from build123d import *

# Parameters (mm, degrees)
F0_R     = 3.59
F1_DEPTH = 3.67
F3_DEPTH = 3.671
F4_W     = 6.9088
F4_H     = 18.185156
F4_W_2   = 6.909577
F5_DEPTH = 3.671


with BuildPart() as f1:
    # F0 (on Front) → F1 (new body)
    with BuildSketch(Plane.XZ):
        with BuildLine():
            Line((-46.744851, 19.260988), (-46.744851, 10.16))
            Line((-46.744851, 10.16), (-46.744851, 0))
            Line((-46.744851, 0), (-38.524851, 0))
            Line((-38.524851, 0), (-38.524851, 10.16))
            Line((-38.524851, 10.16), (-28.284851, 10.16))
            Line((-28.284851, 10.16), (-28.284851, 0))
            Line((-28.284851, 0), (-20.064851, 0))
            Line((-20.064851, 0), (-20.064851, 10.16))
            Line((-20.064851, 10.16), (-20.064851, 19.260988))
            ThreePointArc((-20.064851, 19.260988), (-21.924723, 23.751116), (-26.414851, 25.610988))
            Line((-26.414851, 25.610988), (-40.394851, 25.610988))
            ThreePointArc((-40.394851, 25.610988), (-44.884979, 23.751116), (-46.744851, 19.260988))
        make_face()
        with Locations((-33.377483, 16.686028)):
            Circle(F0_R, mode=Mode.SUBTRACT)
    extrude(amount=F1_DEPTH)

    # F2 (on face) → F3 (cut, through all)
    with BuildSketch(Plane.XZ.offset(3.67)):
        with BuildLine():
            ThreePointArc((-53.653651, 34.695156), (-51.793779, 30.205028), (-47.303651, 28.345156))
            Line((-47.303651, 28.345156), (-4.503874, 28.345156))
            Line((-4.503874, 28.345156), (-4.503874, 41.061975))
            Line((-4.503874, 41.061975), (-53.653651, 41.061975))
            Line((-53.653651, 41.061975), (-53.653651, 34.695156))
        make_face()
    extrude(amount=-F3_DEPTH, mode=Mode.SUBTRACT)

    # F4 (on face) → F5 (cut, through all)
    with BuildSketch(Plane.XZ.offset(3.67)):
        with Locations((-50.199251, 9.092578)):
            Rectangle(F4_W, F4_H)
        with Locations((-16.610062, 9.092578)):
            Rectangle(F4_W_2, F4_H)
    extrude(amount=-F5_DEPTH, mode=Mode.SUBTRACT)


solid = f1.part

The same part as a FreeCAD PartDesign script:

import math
import FreeCAD as App
import Part
import Sketcher

V = App.Vector
Q = App.Units.Quantity

doc = App.newDocument("Part")
body = doc.addObject("PartDesign::Body", "Body")

sketch1 = body.newObject("Sketcher::SketchObject", "Sketch")
sketch1.AttachmentSupport = (doc.getObject("XZ_Plane"), [""])
sketch1.MapMode = "FlatFace"
sketch1.addGeometry([
    Part.LineSegment(V(-46.7, 19.3, 0), V(-46.7, 0, 0)),
    Part.LineSegment(V(-46.7, 0, 0), V(-38.5, 0, 0)),
    Part.LineSegment(V(-38.5, 0, 0), V(-38.5, 10.2, 0)),
    Part.LineSegment(V(-38.5, 10.2, 0), V(-28.3, 10.2, 0)),
    Part.LineSegment(V(-28.3, 10.2, 0), V(-28.3, 0, 0)),
    Part.LineSegment(V(-28.3, 0, 0), V(-20.1, 0, 0)),
    Part.LineSegment(V(-20.1, 0, 0), V(-20.1, 19.3, 0)),
    Part.ArcOfCircle(Part.Circle(V(-26.4, 19.3, 0), V(0, 0, 1), 6.4), math.radians(0), math.radians(90)),
    Part.LineSegment(V(-26.4, 25.6, 0), V(-40.4, 25.6, 0)),
    Part.ArcOfCircle(Part.Circle(V(-40.4, 19.3, 0), V(0, 0, 1), 6.4), math.radians(90), math.radians(180)),
    Part.Circle(V(-33.4, 16.7, 0), V(0, 0, 1), 3.6),
], False)
sketch1.addConstraint([
    Sketcher.Constraint("Coincident", 0, 2, 1, 1),
    Sketcher.Constraint("Coincident", 1, 2, 2, 1),
    Sketcher.Constraint("Coincident", 2, 2, 3, 1),
    Sketcher.Constraint("Coincident", 3, 2, 4, 1),
    Sketcher.Constraint("Coincident", 4, 2, 5, 1),
    Sketcher.Constraint("Coincident", 5, 2, 6, 1),
    Sketcher.Constraint("Tangent", 6, 2, 7, 1),
    Sketcher.Constraint("Tangent", 7, 2, 8, 1),
    Sketcher.Constraint("Tangent", 8, 2, 9, 1),
    Sketcher.Constraint("Tangent", 9, 2, 0, 1),
    Sketcher.Constraint("Vertical", 0),
    Sketcher.Constraint("Horizontal", 1),
    Sketcher.Constraint("Vertical", 2),
    Sketcher.Constraint("Horizontal", 3),
    Sketcher.Constraint("Vertical", 4),
    Sketcher.Constraint("Horizontal", 5),
    Sketcher.Constraint("Vertical", 6),
    Sketcher.Constraint("Horizontal", 8),
    Sketcher.Constraint("Equal", 7, 9),
    Sketcher.Constraint("PointOnObject", 0, 2, -1),
    Sketcher.Constraint("PointOnObject", 4, 2, -1),
    Sketcher.Constraint("Equal", 1, 5),
    Sketcher.Constraint("Radius", 7, Q("0.25 in")),
    Sketcher.Constraint("DistanceY", 2, 1, 2, 2, Q("0.4 in")),
    Sketcher.Constraint("Diameter", 10, Q("7.18 mm")),
    Sketcher.Constraint("DistanceX", 1, 1, 1, 2, Q("8.22 mm")),
    Sketcher.Constraint("DistanceX", 3, 1, 3, 2, Q("10.24 mm")),
    Sketcher.Constraint("DistanceY", 0, 2, 0, 1, Q("19.260988 mm")),
    Sketcher.Constraint("DistanceX", 7, 3, -1, 1, Q("26.414851 mm")),
    Sketcher.Constraint("DistanceY", -1, 1, 10, 3, Q("16.686028 mm")),
    Sketcher.Constraint("DistanceX", 10, 3, 7, 3, Q("6.962632 mm")),
])
pad1 = body.newObject("PartDesign::Pad", "Pad")
pad1.Profile = sketch1
pad1.Length = 3.67

sketch2 = body.newObject("Sketcher::SketchObject", "Sketch001")
sketch2.AttachmentSupport = (doc.getObject("XZ_Plane"), [""])
sketch2.MapMode = "FlatFace"
sketch2.AttachmentOffset = App.Placement(V(0, 0, 3.67), App.Rotation())
sketch2.addGeometry([
    Part.ArcOfCircle(Part.Circle(V(-47, 35, 0), V(0, 0, 1), 6), math.radians(-180), math.radians(-90)),
    Part.LineSegment(V(-47, 28, 0), V(-5, 28, 0)),
    Part.LineSegment(V(-5, 28, 0), V(-5, 41, 0)),
    Part.LineSegment(V(-5, 41, 0), V(-54, 41, 0)),
    Part.LineSegment(V(-54, 41, 0), V(-54, 35, 0)),
], False)
sketch2.addConstraint([
    Sketcher.Constraint("Tangent", 0, 2, 1, 1),
    Sketcher.Constraint("Coincident", 1, 2, 2, 1),
    Sketcher.Constraint("Coincident", 2, 2, 3, 1),
    Sketcher.Constraint("Coincident", 3, 2, 4, 1),
    Sketcher.Constraint("Tangent", 4, 2, 0, 1),
    Sketcher.Constraint("Horizontal", 1),
    Sketcher.Constraint("Vertical", 2),
    Sketcher.Constraint("Horizontal", 3),
    Sketcher.Constraint("Vertical", 4),
    Sketcher.Constraint("Radius", 0, Q("0.25 in")),
    Sketcher.Constraint("DistanceY", 2, 1, 2, 2, Q("12.716819 mm")),
    Sketcher.Constraint("DistanceX", 1, 1, 1, 2, Q("42.799777 mm")),
    Sketcher.Constraint("DistanceX", 0, 3, -1, 1, Q("47.303651 mm")),
    Sketcher.Constraint("DistanceY", -1, 1, 0, 3, Q("34.695156 mm")),
])
pocket1 = body.newObject("PartDesign::Pocket", "Pocket")
pocket1.Profile = sketch2
pocket1.Type = "ThroughAll"

sketch3 = body.newObject("Sketcher::SketchObject", "Sketch002")
sketch3.AttachmentSupport = (doc.getObject("XZ_Plane"), [""])
sketch3.MapMode = "FlatFace"
sketch3.AttachmentOffset = App.Placement(V(0, 0, 3.67), App.Rotation())
sketch3.addGeometry([
    Part.LineSegment(V(-54, 18, 0), V(-54, 0, 0)),
    Part.LineSegment(V(-54, 0, 0), V(-47, 0, 0)),
    Part.LineSegment(V(-47, 0, 0), V(-47, 18, 0)),
    Part.LineSegment(V(-47, 18, 0), V(-54, 18, 0)),
    Part.LineSegment(V(-20, 18, 0), V(-20, 0, 0)),
    Part.LineSegment(V(-20, 0, 0), V(-13, 0, 0)),
    Part.LineSegment(V(-13, 0, 0), V(-13, 18, 0)),
    Part.LineSegment(V(-13, 18, 0), V(-20, 18, 0)),
], False)
sketch3.addConstraint([
    Sketcher.Constraint("Coincident", 0, 2, 1, 1),
    Sketcher.Constraint("Coincident", 1, 2, 2, 1),
    Sketcher.Constraint("Coincident", 2, 2, 3, 1),
    Sketcher.Constraint("Coincident", 3, 2, 0, 1),
    Sketcher.Constraint("Coincident", 4, 2, 5, 1),
    Sketcher.Constraint("Coincident", 5, 2, 6, 1),
    Sketcher.Constraint("Coincident", 6, 2, 7, 1),
    Sketcher.Constraint("Coincident", 7, 2, 4, 1),
    Sketcher.Constraint("Vertical", 0),
    Sketcher.Constraint("Horizontal", 1),
    Sketcher.Constraint("Vertical", 2),
    Sketcher.Constraint("Horizontal", 3),
    Sketcher.Constraint("Vertical", 4),
    Sketcher.Constraint("Horizontal", 5),
    Sketcher.Constraint("Vertical", 6),
    Sketcher.Constraint("Horizontal", 7),
    Sketcher.Constraint("PointOnObject", 0, 2, -1),
    Sketcher.Constraint("PointOnObject", 4, 2, -1),
    Sketcher.Constraint("Horizontal", 3, 2, 6, 2),
    Sketcher.Constraint("DistanceX", 1, 1, 1, 2, Q("0.272 in")),
    Sketcher.Constraint("DistanceX", 1, 2, 4, 2, Q("26.68 mm")),
    Sketcher.Constraint("DistanceX", 5, 1, 5, 2, Q("6.909577 mm")),
    Sketcher.Constraint("DistanceY", 0, 2, 0, 1, Q("18.185156 mm")),
    Sketcher.Constraint("DistanceX", 0, 2, -1, 1, Q("53.653651 mm")),
])
pocket2 = body.newObject("PartDesign::Pocket", "Pocket001")
pocket2.Profile = sketch3
pocket2.Type = "ThroughAll"

doc.recompute()
